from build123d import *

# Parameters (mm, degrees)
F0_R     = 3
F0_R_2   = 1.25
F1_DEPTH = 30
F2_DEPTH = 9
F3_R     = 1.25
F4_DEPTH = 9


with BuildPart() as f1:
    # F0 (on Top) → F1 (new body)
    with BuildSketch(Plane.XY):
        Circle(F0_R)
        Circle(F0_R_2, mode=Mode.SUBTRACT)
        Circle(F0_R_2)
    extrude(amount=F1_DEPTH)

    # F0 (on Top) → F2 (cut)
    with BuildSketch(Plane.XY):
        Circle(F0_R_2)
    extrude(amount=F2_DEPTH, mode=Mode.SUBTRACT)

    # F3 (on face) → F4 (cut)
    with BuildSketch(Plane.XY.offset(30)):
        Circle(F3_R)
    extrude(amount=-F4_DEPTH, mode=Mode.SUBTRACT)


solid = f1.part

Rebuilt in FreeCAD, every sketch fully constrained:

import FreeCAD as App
import Part
import Sketcher
from FreeCAD import Vector
Q = App.Units.Quantity

doc = App.newDocument("Part")
body = doc.addObject("PartDesign::Body", "Body")

# Sketch on XY plane
sketch1 = body.newObject("Sketcher::SketchObject", "Sketch")
sketch1.AttachmentSupport = (doc.getObject("XY_Plane"), [""])
sketch1.MapMode = "FlatFace"
sketch1.addGeometry(Part.Circle(Vector(0, 0, 0), Vector(0, 0, 1), 3), False)
sketch1.addConstraint(Sketcher.Constraint("Coincident", 0, 3, -1, 1))
sketch1.addConstraint(Sketcher.Constraint("Diameter", 0, Q("6 mm")))
pad1 = body.newObject("PartDesign::Pad", "Pad")
pad1.Profile = sketch1
pad1.Length = 30

# Sketch on XY plane
sketch2 = body.newObject("Sketcher::SketchObject", "Sketch001")
sketch2.AttachmentSupport = (doc.getObject("XY_Plane"), [""])
sketch2.MapMode = "FlatFace"
sketch2.addGeometry(Part.Circle(Vector(0, 0, 0), Vector(0, 0, 1), 1.25), False)
sketch2.addConstraint(Sketcher.Constraint("Coincident", 0, 3, -1, 1))
sketch2.addConstraint(Sketcher.Constraint("Diameter", 0, Q("2.5 mm")))
pocket1 = body.newObject("PartDesign::Pocket", "Pocket")
pocket1.Profile = sketch2
pocket1.Length = 9
pocket1.Reversed = True

# Sketch on XY plane
sketch3 = body.newObject("Sketcher::SketchObject", "Sketch002")
sketch3.AttachmentSupport = (doc.getObject("XY_Plane"), [""])
sketch3.MapMode = "FlatFace"
sketch3.AttachmentOffset = App.Placement(Vector(0, 0, 30), App.Rotation())
sketch3.addGeometry(Part.Circle(Vector(0, 0, 0), Vector(0, 0, 1), 1.25), False)
sketch3.addConstraint(Sketcher.Constraint("Coincident", 0, 3, -1, 1))
sketch3.addConstraint(Sketcher.Constraint("Diameter", 0, Q("2.5 mm")))
pocket2 = body.newObject("PartDesign::Pocket", "Pocket001")
pocket2.Profile = sketch3
pocket2.Length = 9

doc.recompute()
